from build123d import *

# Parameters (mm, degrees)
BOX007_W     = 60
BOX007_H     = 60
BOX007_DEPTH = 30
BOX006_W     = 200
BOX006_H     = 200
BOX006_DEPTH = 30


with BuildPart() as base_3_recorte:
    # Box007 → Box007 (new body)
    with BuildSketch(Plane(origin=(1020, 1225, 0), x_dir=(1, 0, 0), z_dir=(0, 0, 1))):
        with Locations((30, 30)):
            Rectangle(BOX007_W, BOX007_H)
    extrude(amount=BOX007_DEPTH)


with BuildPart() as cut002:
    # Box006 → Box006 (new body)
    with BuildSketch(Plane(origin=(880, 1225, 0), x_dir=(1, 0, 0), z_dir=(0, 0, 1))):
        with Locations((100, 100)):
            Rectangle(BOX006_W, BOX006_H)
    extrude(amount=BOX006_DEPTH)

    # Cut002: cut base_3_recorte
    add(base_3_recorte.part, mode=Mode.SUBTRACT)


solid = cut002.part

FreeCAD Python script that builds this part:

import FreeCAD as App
import Part
import Sketcher

V = App.Vector
Q = App.Units.Quantity

doc = App.newDocument("Part")
body = doc.addObject("PartDesign::Body", "Body")

# Sketch on XY plane
sketch1 = body.newObject("Sketcher::SketchObject", "Sketch")
sketch1.AttachmentSupport = (doc.getObject("XY_Plane"), [""])
sketch1.MapMode = "FlatFace"
sketch1.addGeometry(Part.LineSegment(V(1020, 1285, 0), V(1020, 1225, 0)), False)
sketch1.addGeometry(Part.LineSegment(V(1020, 1225, 0), V(1080, 1225, 0)), False)
sketch1.addGeometry(Part.LineSegment(V(1080, 1225, 0), V(1080, 1285, 0)), False)
sketch1.addGeometry(Part.LineSegment(V(1080, 1285, 0), V(1020, 1285, 0)), False)
sketch1.addConstraint(Sketcher.Constraint("Coincident", 0, 2, 1, 1))
sketch1.addConstraint(Sketcher.Constraint("Coincident", 1, 2, 2, 1))
sketch1.addConstraint(Sketcher.Constraint("Coincident", 2, 2, 3, 1))
sketch1.addConstraint(Sketcher.Constraint("Coincident", 3, 2, 0, 1))
sketch1.addConstraint(Sketcher.Constraint("Vertical", 0))
sketch1.addConstraint(Sketcher.Constraint("Horizontal", 1))
sketch1.addConstraint(Sketcher.Constraint("Vertical", 2))
sketch1.addConstraint(Sketcher.Constraint("Horizontal", 3))
sketch1.addConstraint(Sketcher.Constraint("Equal", 3, 0))
sketch1.addConstraint(Sketcher.Constraint("DistanceX", 1, 1, 1, 2, Q("60 mm")))
sketch1.addConstraint(Sketcher.Constraint("DistanceX", -1, 1, 0, 2, Q("1020 mm")))
sketch1.addConstraint(Sketcher.Constraint("DistanceY", -1, 1, 0, 2, Q("1225 mm")))
pad1 = body.newObject("PartDesign::Pad", "Pad")
pad1.Profile = sketch1
pad1.Length = 30
body2 = doc.addObject("PartDesign::Body", "Body001")

# Sketch on XY plane
sketch2 = body2.newObject("Sketcher::SketchObject", "Sketch001")
sketch2.AttachmentSupport = (doc.getObject("XY_Plane001"), [""])
sketch2.MapMode = "FlatFace"
sketch2.addGeometry(Part.LineSegment(V(880, 1425, 0), V(880, 1225, 0)), False)
sketch2.addGeometry(Part.LineSegment(V(880, 1225, 0), V(1080, 1225, 0)), False)
sketch2.addGeometry(Part.LineSegment(V(1080, 1225, 0), V(1080, 1425, 0)), False)
sketch2.addGeometry(Part.LineSegment(V(1080, 1425, 0), V(880, 1425, 0)), False)
sketch2.addConstraint(Sketcher.Constraint("Coincident", 0, 2, 1, 1))
sketch2.addConstraint(Sketcher.Constraint("Coincident", 1, 2, 2, 1))
sketch2.addConstraint(Sketcher.Constraint("Coincident", 2, 2, 3, 1))
sketch2.addConstraint(Sketcher.Constraint("Coincident", 3, 2, 0, 1))
sketch2.addConstraint(Sketcher.Constraint("Vertical", 0))
sketch2.addConstraint(Sketcher.Constraint("Horizontal", 1))
sketch2.addConstraint(Sketcher.Constraint("Vertical", 2))
sketch2.addConstraint(Sketcher.Constraint("Horizontal", 3))
sketch2.addConstraint(Sketcher.Constraint("Equal", 3, 0))
sketch2.addConstraint(Sketcher.Constraint("DistanceX", 1, 1, 1, 2, Q("200 mm")))
sketch2.addConstraint(Sketcher.Constraint("DistanceX", -1, 1, 0, 2, Q("880 mm")))
sketch2.addConstraint(Sketcher.Constraint("DistanceY", -1, 1, 0, 2, Q("1225 mm")))
pad2 = body2.newObject("PartDesign::Pad", "Pad001")
pad2.Profile = sketch2
pad2.Length = 30
doc.recompute()

boolean = body2.newObject("PartDesign::Boolean", "Boolean")
boolean.Type = "Cut"
boolean.addObjects([body])

doc.recompute()
